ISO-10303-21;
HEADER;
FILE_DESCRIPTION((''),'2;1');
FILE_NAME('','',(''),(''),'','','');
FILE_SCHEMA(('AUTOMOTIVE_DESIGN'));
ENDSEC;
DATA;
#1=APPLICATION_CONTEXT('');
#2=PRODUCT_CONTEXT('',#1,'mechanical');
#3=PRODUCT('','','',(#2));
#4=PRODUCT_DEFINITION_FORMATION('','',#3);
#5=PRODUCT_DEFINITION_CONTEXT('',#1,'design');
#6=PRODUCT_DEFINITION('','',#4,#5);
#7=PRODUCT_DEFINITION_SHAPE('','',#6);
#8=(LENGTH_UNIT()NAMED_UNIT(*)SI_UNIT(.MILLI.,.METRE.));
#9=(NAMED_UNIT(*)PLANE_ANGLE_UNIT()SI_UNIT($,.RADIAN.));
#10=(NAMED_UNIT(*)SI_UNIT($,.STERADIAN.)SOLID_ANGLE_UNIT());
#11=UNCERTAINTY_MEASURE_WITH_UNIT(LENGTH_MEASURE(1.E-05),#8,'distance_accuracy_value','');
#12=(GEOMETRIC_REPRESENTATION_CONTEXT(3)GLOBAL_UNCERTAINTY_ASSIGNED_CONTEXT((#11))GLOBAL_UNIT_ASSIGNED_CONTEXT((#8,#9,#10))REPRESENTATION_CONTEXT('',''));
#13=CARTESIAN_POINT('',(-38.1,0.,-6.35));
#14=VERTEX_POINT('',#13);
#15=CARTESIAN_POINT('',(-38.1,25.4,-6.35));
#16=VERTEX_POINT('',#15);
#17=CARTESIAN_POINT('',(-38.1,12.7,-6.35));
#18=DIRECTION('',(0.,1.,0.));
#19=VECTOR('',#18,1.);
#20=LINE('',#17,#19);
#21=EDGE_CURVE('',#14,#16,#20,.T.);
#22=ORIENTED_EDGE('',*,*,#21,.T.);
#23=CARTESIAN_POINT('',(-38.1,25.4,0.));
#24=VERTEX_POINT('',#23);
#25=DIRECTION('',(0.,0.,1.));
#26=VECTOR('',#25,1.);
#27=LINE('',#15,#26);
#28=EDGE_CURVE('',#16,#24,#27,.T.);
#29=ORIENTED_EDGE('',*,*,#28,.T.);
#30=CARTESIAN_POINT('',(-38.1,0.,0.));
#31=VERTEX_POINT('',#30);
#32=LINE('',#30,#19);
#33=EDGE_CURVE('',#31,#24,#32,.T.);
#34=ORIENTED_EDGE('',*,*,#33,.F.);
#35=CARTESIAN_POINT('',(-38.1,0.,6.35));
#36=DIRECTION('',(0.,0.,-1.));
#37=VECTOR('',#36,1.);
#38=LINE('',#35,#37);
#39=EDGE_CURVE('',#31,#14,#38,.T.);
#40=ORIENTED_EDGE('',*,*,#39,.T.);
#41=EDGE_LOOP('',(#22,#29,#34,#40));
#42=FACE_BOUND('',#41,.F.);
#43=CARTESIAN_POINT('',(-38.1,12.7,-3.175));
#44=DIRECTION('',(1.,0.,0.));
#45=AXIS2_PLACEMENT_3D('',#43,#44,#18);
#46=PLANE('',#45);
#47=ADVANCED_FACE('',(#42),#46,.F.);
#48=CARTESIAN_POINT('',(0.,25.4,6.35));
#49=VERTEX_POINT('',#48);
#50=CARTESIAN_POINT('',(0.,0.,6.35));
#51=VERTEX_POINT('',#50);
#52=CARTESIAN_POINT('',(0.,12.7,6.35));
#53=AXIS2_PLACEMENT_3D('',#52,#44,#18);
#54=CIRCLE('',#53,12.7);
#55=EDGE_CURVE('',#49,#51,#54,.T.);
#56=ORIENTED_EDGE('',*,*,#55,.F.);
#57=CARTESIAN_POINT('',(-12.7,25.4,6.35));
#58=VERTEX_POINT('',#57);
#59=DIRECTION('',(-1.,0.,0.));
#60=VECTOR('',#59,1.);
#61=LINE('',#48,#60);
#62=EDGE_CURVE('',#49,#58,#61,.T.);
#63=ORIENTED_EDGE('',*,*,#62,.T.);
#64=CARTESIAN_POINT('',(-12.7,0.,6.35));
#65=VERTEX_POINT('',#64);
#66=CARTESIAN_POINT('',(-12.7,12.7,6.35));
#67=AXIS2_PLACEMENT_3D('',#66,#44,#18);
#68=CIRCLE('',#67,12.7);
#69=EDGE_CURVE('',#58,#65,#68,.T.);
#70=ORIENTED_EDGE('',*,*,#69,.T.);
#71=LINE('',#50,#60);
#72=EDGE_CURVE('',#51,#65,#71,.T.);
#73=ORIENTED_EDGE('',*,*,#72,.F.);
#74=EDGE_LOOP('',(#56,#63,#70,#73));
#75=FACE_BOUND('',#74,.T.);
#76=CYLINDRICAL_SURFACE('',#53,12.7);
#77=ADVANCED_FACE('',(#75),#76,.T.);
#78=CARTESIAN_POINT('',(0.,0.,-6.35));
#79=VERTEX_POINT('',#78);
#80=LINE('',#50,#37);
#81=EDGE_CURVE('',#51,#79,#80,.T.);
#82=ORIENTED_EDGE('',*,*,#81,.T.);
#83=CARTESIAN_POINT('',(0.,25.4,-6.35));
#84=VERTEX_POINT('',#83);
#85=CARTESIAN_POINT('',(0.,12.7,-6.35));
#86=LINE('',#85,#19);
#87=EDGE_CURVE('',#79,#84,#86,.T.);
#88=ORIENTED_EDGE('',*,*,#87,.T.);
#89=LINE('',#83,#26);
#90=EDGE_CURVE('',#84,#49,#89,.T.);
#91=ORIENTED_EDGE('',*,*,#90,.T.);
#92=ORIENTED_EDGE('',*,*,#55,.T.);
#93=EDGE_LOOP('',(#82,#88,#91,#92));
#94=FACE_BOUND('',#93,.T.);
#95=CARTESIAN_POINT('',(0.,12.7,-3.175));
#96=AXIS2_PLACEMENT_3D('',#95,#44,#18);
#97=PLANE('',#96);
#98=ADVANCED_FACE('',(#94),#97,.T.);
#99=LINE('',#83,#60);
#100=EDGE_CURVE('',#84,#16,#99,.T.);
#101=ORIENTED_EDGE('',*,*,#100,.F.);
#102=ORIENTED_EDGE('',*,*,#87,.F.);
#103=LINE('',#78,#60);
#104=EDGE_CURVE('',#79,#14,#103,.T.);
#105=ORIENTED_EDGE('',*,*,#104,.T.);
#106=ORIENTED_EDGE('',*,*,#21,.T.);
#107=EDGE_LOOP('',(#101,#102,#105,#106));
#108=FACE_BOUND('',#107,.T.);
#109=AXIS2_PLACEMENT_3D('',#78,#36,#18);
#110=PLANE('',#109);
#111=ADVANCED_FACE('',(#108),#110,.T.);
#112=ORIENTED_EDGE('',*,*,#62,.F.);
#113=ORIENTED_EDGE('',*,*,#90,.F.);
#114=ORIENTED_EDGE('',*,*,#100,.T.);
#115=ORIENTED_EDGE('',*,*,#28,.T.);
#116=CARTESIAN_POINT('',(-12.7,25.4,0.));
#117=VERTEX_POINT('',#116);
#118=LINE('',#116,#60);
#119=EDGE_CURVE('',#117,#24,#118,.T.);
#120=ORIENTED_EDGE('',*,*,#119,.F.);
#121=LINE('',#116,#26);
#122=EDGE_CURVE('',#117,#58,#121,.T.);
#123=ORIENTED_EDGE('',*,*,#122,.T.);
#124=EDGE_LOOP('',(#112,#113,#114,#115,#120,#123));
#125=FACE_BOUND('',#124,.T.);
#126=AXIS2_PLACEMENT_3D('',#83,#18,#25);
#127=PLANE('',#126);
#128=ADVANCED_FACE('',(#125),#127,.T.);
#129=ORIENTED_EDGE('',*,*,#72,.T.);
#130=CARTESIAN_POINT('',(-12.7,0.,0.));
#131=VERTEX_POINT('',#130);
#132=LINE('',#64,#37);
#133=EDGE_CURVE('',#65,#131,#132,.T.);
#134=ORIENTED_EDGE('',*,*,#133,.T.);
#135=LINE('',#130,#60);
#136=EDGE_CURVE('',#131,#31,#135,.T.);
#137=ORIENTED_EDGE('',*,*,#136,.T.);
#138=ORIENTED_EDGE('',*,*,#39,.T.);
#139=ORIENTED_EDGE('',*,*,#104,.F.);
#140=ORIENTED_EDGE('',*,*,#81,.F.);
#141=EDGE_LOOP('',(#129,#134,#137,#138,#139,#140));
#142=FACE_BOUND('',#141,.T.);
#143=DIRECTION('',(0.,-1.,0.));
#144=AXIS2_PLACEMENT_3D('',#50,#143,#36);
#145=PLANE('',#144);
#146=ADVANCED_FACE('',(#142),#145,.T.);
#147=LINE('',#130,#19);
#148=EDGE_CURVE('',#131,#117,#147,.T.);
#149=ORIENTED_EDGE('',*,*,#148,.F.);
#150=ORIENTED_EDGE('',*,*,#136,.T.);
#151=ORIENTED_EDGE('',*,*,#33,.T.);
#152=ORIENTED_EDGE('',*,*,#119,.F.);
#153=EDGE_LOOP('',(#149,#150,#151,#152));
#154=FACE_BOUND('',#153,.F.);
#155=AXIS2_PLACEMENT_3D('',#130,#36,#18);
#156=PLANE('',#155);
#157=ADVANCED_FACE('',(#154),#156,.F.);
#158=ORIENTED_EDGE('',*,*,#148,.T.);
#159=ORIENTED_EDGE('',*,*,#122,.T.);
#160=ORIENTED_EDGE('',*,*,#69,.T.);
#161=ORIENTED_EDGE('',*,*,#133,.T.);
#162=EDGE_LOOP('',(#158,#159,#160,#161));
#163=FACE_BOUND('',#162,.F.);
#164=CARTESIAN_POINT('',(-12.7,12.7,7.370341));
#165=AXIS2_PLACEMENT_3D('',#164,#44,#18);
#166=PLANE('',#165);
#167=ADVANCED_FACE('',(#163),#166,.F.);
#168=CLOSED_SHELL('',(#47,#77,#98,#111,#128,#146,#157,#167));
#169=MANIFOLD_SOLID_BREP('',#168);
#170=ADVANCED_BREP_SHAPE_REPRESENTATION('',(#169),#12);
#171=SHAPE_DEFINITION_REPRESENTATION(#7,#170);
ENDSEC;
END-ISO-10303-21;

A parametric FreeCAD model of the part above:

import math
import FreeCAD as App
import Part
import Sketcher
Q = App.Units.Quantity

doc = App.newDocument("Part")
body = doc.addObject("PartDesign::Body", "Body")

# Sketch on YZ plane
sketch1 = body.newObject("Sketcher::SketchObject", "Sketch")
sketch1.AttachmentSupport = (doc.getObject("YZ_Plane"), [""])
sketch1.MapMode = "FlatFace"
sketch1.addGeometry([
    Part.LineSegment(App.Vector(0, -6, 0), App.Vector(25, -6, 0)),
    Part.LineSegment(App.Vector(25, -6, 0), App.Vector(25, 6, 0)),
    Part.ArcOfCircle(Part.Circle(App.Vector(13, 6, 0), App.Vector(0, 0, 1), 13), math.radians(0), math.radians(180)),
    Part.LineSegment(App.Vector(0, 6, 0), App.Vector(0, -6, 0)),
], False)
sketch1.addConstraint([
    Sketcher.Constraint("Coincident", 0, 2, 1, 1),
    Sketcher.Constraint("Tangent", 1, 2, 2, 1),
    Sketcher.Constraint("Tangent", 2, 2, 3, 1),
    Sketcher.Constraint("Coincident", 3, 2, 0, 1),
    Sketcher.Constraint("Horizontal", 0),
    Sketcher.Constraint("Vertical", 1),
    Sketcher.Constraint("Vertical", 3),
    Sketcher.Constraint("Symmetric", 2, 2, 3, 2, -1, 1),
    Sketcher.Constraint("Radius", 2, Q("0.5 in")),
    Sketcher.Constraint("DistanceY", 1, 1, 1, 2, Q("0.5 in")),
])
pad1 = body.newObject("PartDesign::Pad", "Pad")
pad1.Profile = sketch1
pad1.Length = Q("1.5 in")
pad1.Reversed = True

# Sketch on YZ plane
sketch2 = body.newObject("Sketcher::SketchObject", "Sketch001")
sketch2.AttachmentSupport = (doc.getObject("YZ_Plane"), [""])
sketch2.MapMode = "FlatFace"
sketch2.AttachmentOffset = App.Placement(App.Vector(0, 0, -0.5 * 25.4), App.Rotation())
sketch2.addGeometry([
    Part.LineSegment(App.Vector(0, 6, 0), App.Vector(0, 0, 0)),
    Part.LineSegment(App.Vector(0, 0, 0), App.Vector(25, 0, 0)),
    Part.LineSegment(App.Vector(25, 0, 0), App.Vector(25, 6, 0)),
    Part.ArcOfCircle(Part.Circle(App.Vector(13, 6, 0), App.Vector(0, 0, 1), 13), math.radians(0), math.radians(180)),
], False)
sketch2.addConstraint([
    Sketcher.Constraint("Coincident", 0, 2, 1, 1),
    Sketcher.Constraint("Coincident", 1, 2, 2, 1),
    Sketcher.Constraint("Tangent", 2, 2, 3, 1),
    Sketcher.Constraint("Tangent", 3, 2, 0, 1),
    Sketcher.Constraint("Vertical", 0),
    Sketcher.Constraint("Horizontal", 1),
    Sketcher.Constraint("Vertical", 2),
    Sketcher.Constraint("Coincident", 0, 2, -1, 1),
    Sketcher.Constraint("Radius", 3, Q("0.5 in")),
    Sketcher.Constraint("DistanceY", 0, 2, 0, 1, Q("0.25 in")),
])
pocket1 = body.newObject("PartDesign::Pocket", "Pocket")
pocket1.Profile = sketch2
pocket1.Length = Q("1 in")

doc.recompute()
